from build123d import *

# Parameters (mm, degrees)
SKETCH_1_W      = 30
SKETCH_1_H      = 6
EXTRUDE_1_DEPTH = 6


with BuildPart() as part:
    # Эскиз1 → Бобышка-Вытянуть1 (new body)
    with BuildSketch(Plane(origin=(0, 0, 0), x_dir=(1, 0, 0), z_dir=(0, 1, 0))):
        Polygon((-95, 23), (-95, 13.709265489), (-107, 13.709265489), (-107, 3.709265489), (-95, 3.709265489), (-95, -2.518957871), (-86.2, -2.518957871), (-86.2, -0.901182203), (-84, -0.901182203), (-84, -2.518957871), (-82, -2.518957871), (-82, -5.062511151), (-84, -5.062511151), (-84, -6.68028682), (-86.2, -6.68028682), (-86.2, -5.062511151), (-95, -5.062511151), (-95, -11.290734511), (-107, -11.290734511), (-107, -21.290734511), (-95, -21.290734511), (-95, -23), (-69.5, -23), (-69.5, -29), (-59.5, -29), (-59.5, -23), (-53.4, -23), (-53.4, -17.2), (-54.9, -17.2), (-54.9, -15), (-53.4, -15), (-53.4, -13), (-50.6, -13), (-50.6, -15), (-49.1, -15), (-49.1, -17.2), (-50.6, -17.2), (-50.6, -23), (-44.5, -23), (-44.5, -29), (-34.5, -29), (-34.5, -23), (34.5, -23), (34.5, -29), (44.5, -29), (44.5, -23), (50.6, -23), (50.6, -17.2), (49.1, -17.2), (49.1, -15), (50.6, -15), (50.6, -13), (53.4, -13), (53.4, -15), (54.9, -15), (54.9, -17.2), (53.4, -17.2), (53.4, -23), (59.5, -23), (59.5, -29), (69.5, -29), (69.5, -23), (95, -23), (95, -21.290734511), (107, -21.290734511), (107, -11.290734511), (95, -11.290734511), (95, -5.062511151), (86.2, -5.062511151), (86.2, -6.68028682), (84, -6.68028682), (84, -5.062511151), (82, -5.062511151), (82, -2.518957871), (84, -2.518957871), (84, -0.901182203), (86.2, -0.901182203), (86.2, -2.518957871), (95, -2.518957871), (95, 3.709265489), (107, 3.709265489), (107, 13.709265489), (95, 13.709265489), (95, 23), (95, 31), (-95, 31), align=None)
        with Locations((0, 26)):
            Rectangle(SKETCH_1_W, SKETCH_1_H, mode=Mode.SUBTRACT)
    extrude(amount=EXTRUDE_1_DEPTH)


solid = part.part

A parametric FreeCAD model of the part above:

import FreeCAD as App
import Part
import Sketcher


def add_polygon(sketch, points):
    """Adds a closed chain of lines whose ends are joined by coincident constraints."""
    first, n = sketch.GeometryCount, len(points)
    for a, b in zip(points, points[1:] + points[:1]):
        sketch.addGeometry(Part.LineSegment(App.Vector(*a, 0), App.Vector(*b, 0)), False)
    for i in range(n):
        sketch.addConstraint(Sketcher.Constraint("Coincident", first + i, 2, first + (i + 1) % n, 1))

doc = App.newDocument("Part")
body = doc.addObject("PartDesign::Body", "Body")

sketch1 = body.newObject("Sketcher::SketchObject", "Sketch")
sketch1.AttachmentSupport = (doc.getObject("XZ_Plane"), [""])
sketch1.MapMode = "FlatFace"
add_polygon(sketch1, [(-95, -13.709265), (-107, -13.709265), (-107, -3.709265), (-95, -3.709265), (-95, 2.518958), (-86.2, 2.518958), (-86.2, 0.901182), (-84, 0.901182), (-84, 2.518958), (-82, 2.518958), (-82, 5.062511), (-84, 5.062511), (-84, 6.680287), (-86.2, 6.680287), (-86.2, 5.062511), (-95, 5.062511), (-95, 11.290735), (-107, 11.290735), (-107, 21.290735), (-95, 21.290735), (-95, 23), (-69.5, 23), (-69.5, 29), (-59.5, 29), (-59.5, 23), (-53.4, 23), (-53.4, 17.2), (-54.9, 17.2), (-54.9, 15), (-53.4, 15), (-53.4, 13), (-50.6, 13), (-50.6, 15), (-49.1, 15), (-49.1, 17.2), (-50.6, 17.2), (-50.6, 23), (-44.5, 23), (-44.5, 29), (-34.5, 29), (-34.5, 23), (34.5, 23), (34.5, 29), (44.5, 29), (44.5, 23), (50.6, 23), (50.6, 17.2), (49.1, 17.2), (49.1, 15), (50.6, 15), (50.6, 13), (53.4, 13), (53.4, 15), (54.9, 15), (54.9, 17.2), (53.4, 17.2), (53.4, 23), (59.5, 23), (59.5, 29), (69.5, 29), (69.5, 23), (95, 23), (95, 21.290735), (107, 21.290735), (107, 11.290735), (95, 11.290735), (95, 5.062511), (86.2, 5.062511), (86.2, 6.680287), (84, 6.680287), (84, 5.062511), (82, 5.062511), (82, 2.518958), (84, 2.518958), (84, 0.901182), (86.2, 0.901182), (86.2, 2.518958), (95, 2.518958), (95, -3.709265), (107, -3.709265), (107, -13.709265), (95, -13.709265), (95, -31), (-95, -31)])
add_polygon(sketch1, [(15, -23), (-15, -23), (-15, -29), (15, -29)])
sketch1.addConstraint([
    Sketcher.Constraint("Horizontal", 0),
    Sketcher.Constraint("Vertical", 1),
    Sketcher.Constraint("Horizontal", 2),
    Sketcher.Constraint("Vertical", 3),
    Sketcher.Constraint("Horizontal", 4),
    Sketcher.Constraint("Vertical", 5),
    Sketcher.Constraint("Horizontal", 6),
    Sketcher.Constraint("Vertical", 7),
    Sketcher.Constraint("Horizontal", 8),
    Sketcher.Constraint("Vertical", 9),
    Sketcher.Constraint("Horizontal", 10),
    Sketcher.Constraint("Vertical", 11),
    Sketcher.Constraint("Horizontal", 12),
    Sketcher.Constraint("Vertical", 13),
    Sketcher.Constraint("Horizontal", 14),
    Sketcher.Constraint("Vertical", 15),
    Sketcher.Constraint("Horizontal", 16),
    Sketcher.Constraint("Vertical", 17),
    Sketcher.Constraint("Horizontal", 18),
    Sketcher.Constraint("Vertical", 19),
    Sketcher.Constraint("Horizontal", 20),
    Sketcher.Constraint("Vertical", 21),
    Sketcher.Constraint("Horizontal", 22),
    Sketcher.Constraint("Vertical", 23),
    Sketcher.Constraint("Horizontal", 24),
    Sketcher.Constraint("Vertical", 25),
    Sketcher.Constraint("Horizontal", 26),
    Sketcher.Constraint("Vertical", 27),
    Sketcher.Constraint("Horizontal", 28),
    Sketcher.Constraint("Vertical", 29),
    Sketcher.Constraint("Horizontal", 30),
    Sketcher.Constraint("Vertical", 31),
    Sketcher.Constraint("Horizontal", 32),
    Sketcher.Constraint("Vertical", 33),
    Sketcher.Constraint("Horizontal", 34),
    Sketcher.Constraint("Vertical", 35),
    Sketcher.Constraint("Horizontal", 36),
    Sketcher.Constraint("Vertical", 37),
    Sketcher.Constraint("Horizontal", 38),
    Sketcher.Constraint("Vertical", 39),
    Sketcher.Constraint("Horizontal", 40),
    Sketcher.Constraint("Vertical", 41),
    Sketcher.Constraint("Horizontal", 42),
    Sketcher.Constraint("Vertical", 43),
    Sketcher.Constraint("Horizontal", 44),
    Sketcher.Constraint("Vertical", 45),
    Sketcher.Constraint("Horizontal", 46),
    Sketcher.Constraint("Vertical", 47),
    Sketcher.Constraint("Horizontal", 48),
    Sketcher.Constraint("Vertical", 49),
    Sketcher.Constraint("Horizontal", 50),
    Sketcher.Constraint("Vertical", 51),
    Sketcher.Constraint("Horizontal", 52),
    Sketcher.Constraint("Vertical", 53),
    Sketcher.Constraint("Horizontal", 54),
    Sketcher.Constraint("Vertical", 55),
    Sketcher.Constraint("Horizontal", 56),
    Sketcher.Constraint("Vertical", 57),
    Sketcher.Constraint("Horizontal", 58),
    Sketcher.Constraint("Vertical", 59),
    Sketcher.Constraint("Horizontal", 60),
    Sketcher.Constraint("Vertical", 61),
    Sketcher.Constraint("Horizontal", 62),
    Sketcher.Constraint("Vertical", 63),
    Sketcher.Constraint("Horizontal", 64),
    Sketcher.Constraint("Vertical", 65),
    Sketcher.Constraint("Horizontal", 66),
    Sketcher.Constraint("Vertical", 67),
    Sketcher.Constraint("Horizontal", 68),
    Sketcher.Constraint("Vertical", 69),
    Sketcher.Constraint("Horizontal", 70),
    Sketcher.Constraint("Vertical", 71),
    Sketcher.Constraint("Horizontal", 72),
    Sketcher.Constraint("Vertical", 73),
    Sketcher.Constraint("Horizontal", 74),
    Sketcher.Constraint("Vertical", 75),
    Sketcher.Constraint("Horizontal", 76),
    Sketcher.Constraint("Vertical", 77),
    Sketcher.Constraint("Horizontal", 78),
    Sketcher.Constraint("Vertical", 79),
    Sketcher.Constraint("Horizontal", 80),
    Sketcher.Constraint("Vertical", 81),
    Sketcher.Constraint("Horizontal", 82),
    Sketcher.Constraint("Vertical", 83),
    Sketcher.Constraint("Horizontal", 84),
    Sketcher.Constraint("Vertical", 85),
    Sketcher.Constraint("Horizontal", 86),
    Sketcher.Constraint("Vertical", 87),
    Sketcher.Constraint("Symmetric", 38, 2, 41, 2, -2),
    Sketcher.Constraint("Symmetric", 36, 2, 43, 2, -2),
    Sketcher.Constraint("Symmetric", 34, 2, 45, 2, -2),
    Sketcher.Constraint("Symmetric", 32, 2, 47, 2, -2),
    Sketcher.Constraint("Symmetric", 30, 2, 49, 2, -2),
    Sketcher.Constraint("Symmetric", 28, 2, 51, 2, -2),
    Sketcher.Constraint("Symmetric", 26, 2, 53, 2, -2),
    Sketcher.Constraint("Symmetric", 24, 2, 55, 2, -2),
    Sketcher.Constraint("Symmetric", 22, 2, 57, 2, -2),
    Sketcher.Constraint("Symmetric", 20, 2, 59, 2, -2),
    Sketcher.Constraint("Symmetric", 18, 2, 61, 2, -2),
    Sketcher.Constraint("Symmetric", 16, 2, 63, 2, -2),
    Sketcher.Constraint("Symmetric", 14, 2, 65, 2, -2),
    Sketcher.Constraint("Symmetric", 12, 2, 67, 2, -2),
    Sketcher.Constraint("Symmetric", 10, 2, 69, 2, -2),
    Sketcher.Constraint("Symmetric", 8, 2, 71, 2, -2),
    Sketcher.Constraint("Symmetric", 6, 2, 73, 2, -2),
    Sketcher.Constraint("Symmetric", 4, 2, 75, 2, -2),
    Sketcher.Constraint("Symmetric", 2, 2, 77, 2, -2),
    Sketcher.Constraint("Symmetric", 0, 2, 79, 2, -2),
    Sketcher.Constraint("Horizontal", 4, 2, 7, 2),
    Sketcher.Constraint("Horizontal", 10, 2, 13, 2),
    Sketcher.Constraint("Horizontal", 20, 2, 23, 2),
    Sketcher.Constraint("Horizontal", 28, 2, 31, 2),
    Sketcher.Constraint("Horizontal", 26, 2, 33, 2),
    Sketcher.Constraint("Horizontal", 24, 2, 35, 2),
    Sketcher.Constraint("Horizontal", 22, 2, 37, 2),
    Sketcher.Constraint("Horizontal", 36, 2, 39, 2),
    Sketcher.Constraint("Vertical", 7, 2, 10, 2),
    Sketcher.Constraint("Vertical", 5, 2, 12, 2),
    Sketcher.Constraint("Vertical", 3, 2, 14, 2),
    Sketcher.Constraint("Vertical", 1, 2, 16, 2),
    Sketcher.Constraint("Vertical", 15, 2, 18, 2),
    Sketcher.Constraint("Vertical", 25, 2, 28, 2),
    Sketcher.Constraint("Vertical", 31, 2, 34, 2),
    Sketcher.Constraint("Vertical", 77, 2, 80, 2),
    Sketcher.Constraint("Vertical", 19, 2, 82, 2),
    Sketcher.Constraint("Equal", 28, 32),
    Sketcher.Constraint("Equal", 24, 36),
    Sketcher.Constraint("Equal", 22, 38),
    Sketcher.Constraint("Equal", 58, 1),
    Sketcher.Constraint("Equal", 7, 11),
    Sketcher.Constraint("Equal", 3, 15),
    Sketcher.Constraint("Equal", 1, 17),
    Sketcher.Constraint("Equal", 74, 27),
    Sketcher.Constraint("Equal", 72, 29),
    Sketcher.Constraint("Equal", 59, 85),
    Sketcher.Constraint("DistanceX", 0, 2, 0, 1, 12.0),
    Sketcher.Constraint("DistanceX", 8, 1, 8, 2, 2.0),
    Sketcher.Constraint("DistanceX", 22, 1, 22, 2, 10.0),
    Sketcher.Constraint("DistanceX", 40, 1, 40, 2, 69.0),
    Sketcher.Constraint("DistanceX", 82, 2, 82, 1, 190.0),
    Sketcher.Constraint("DistanceX", 84, 2, 84, 1, 30.0),
    Sketcher.Constraint("DistanceY", 21, 1, 21, 2, 6.0),
    Sketcher.Constraint("DistanceX", 4, 1, 4, 2, 8.8),
    Sketcher.Constraint("DistanceX", 6, 1, 6, 2, 2.2),
    Sketcher.Constraint("DistanceX", 20, 1, 20, 2, 25.5),
    Sketcher.Constraint("DistanceX", 24, 1, 24, 2, 6.1),
    Sketcher.Constraint("DistanceX", 26, 2, 26, 1, 1.5),
    Sketcher.Constraint("DistanceY", 25, 2, 25, 1, 5.8),
    Sketcher.Constraint("DistanceY", -1, 1, 19, 2, 23.0),
    Sketcher.Constraint("DistanceY", 81, 2, -1, 1, 31.0),
    Sketcher.Constraint("DistanceX", 84, 2, -1, 1, 15.0),
    Sketcher.Constraint("DistanceY", 84, 2, -1, 1, 23.0),
    Sketcher.Constraint("DistanceY", 3, 1, 3, 2, 6.228223),
    Sketcher.Constraint("DistanceY", 5, 2, 5, 1, 1.617776),
    Sketcher.Constraint("DistanceY", 9, 1, 9, 2, 2.543553),
    Sketcher.Constraint("DistanceY", 19, 1, 19, 2, 1.709265),
])
pad1 = body.newObject("PartDesign::Pad", "Pad")
pad1.Profile = sketch1
pad1.Length = 6
pad1.Reversed = True

doc.recompute()
